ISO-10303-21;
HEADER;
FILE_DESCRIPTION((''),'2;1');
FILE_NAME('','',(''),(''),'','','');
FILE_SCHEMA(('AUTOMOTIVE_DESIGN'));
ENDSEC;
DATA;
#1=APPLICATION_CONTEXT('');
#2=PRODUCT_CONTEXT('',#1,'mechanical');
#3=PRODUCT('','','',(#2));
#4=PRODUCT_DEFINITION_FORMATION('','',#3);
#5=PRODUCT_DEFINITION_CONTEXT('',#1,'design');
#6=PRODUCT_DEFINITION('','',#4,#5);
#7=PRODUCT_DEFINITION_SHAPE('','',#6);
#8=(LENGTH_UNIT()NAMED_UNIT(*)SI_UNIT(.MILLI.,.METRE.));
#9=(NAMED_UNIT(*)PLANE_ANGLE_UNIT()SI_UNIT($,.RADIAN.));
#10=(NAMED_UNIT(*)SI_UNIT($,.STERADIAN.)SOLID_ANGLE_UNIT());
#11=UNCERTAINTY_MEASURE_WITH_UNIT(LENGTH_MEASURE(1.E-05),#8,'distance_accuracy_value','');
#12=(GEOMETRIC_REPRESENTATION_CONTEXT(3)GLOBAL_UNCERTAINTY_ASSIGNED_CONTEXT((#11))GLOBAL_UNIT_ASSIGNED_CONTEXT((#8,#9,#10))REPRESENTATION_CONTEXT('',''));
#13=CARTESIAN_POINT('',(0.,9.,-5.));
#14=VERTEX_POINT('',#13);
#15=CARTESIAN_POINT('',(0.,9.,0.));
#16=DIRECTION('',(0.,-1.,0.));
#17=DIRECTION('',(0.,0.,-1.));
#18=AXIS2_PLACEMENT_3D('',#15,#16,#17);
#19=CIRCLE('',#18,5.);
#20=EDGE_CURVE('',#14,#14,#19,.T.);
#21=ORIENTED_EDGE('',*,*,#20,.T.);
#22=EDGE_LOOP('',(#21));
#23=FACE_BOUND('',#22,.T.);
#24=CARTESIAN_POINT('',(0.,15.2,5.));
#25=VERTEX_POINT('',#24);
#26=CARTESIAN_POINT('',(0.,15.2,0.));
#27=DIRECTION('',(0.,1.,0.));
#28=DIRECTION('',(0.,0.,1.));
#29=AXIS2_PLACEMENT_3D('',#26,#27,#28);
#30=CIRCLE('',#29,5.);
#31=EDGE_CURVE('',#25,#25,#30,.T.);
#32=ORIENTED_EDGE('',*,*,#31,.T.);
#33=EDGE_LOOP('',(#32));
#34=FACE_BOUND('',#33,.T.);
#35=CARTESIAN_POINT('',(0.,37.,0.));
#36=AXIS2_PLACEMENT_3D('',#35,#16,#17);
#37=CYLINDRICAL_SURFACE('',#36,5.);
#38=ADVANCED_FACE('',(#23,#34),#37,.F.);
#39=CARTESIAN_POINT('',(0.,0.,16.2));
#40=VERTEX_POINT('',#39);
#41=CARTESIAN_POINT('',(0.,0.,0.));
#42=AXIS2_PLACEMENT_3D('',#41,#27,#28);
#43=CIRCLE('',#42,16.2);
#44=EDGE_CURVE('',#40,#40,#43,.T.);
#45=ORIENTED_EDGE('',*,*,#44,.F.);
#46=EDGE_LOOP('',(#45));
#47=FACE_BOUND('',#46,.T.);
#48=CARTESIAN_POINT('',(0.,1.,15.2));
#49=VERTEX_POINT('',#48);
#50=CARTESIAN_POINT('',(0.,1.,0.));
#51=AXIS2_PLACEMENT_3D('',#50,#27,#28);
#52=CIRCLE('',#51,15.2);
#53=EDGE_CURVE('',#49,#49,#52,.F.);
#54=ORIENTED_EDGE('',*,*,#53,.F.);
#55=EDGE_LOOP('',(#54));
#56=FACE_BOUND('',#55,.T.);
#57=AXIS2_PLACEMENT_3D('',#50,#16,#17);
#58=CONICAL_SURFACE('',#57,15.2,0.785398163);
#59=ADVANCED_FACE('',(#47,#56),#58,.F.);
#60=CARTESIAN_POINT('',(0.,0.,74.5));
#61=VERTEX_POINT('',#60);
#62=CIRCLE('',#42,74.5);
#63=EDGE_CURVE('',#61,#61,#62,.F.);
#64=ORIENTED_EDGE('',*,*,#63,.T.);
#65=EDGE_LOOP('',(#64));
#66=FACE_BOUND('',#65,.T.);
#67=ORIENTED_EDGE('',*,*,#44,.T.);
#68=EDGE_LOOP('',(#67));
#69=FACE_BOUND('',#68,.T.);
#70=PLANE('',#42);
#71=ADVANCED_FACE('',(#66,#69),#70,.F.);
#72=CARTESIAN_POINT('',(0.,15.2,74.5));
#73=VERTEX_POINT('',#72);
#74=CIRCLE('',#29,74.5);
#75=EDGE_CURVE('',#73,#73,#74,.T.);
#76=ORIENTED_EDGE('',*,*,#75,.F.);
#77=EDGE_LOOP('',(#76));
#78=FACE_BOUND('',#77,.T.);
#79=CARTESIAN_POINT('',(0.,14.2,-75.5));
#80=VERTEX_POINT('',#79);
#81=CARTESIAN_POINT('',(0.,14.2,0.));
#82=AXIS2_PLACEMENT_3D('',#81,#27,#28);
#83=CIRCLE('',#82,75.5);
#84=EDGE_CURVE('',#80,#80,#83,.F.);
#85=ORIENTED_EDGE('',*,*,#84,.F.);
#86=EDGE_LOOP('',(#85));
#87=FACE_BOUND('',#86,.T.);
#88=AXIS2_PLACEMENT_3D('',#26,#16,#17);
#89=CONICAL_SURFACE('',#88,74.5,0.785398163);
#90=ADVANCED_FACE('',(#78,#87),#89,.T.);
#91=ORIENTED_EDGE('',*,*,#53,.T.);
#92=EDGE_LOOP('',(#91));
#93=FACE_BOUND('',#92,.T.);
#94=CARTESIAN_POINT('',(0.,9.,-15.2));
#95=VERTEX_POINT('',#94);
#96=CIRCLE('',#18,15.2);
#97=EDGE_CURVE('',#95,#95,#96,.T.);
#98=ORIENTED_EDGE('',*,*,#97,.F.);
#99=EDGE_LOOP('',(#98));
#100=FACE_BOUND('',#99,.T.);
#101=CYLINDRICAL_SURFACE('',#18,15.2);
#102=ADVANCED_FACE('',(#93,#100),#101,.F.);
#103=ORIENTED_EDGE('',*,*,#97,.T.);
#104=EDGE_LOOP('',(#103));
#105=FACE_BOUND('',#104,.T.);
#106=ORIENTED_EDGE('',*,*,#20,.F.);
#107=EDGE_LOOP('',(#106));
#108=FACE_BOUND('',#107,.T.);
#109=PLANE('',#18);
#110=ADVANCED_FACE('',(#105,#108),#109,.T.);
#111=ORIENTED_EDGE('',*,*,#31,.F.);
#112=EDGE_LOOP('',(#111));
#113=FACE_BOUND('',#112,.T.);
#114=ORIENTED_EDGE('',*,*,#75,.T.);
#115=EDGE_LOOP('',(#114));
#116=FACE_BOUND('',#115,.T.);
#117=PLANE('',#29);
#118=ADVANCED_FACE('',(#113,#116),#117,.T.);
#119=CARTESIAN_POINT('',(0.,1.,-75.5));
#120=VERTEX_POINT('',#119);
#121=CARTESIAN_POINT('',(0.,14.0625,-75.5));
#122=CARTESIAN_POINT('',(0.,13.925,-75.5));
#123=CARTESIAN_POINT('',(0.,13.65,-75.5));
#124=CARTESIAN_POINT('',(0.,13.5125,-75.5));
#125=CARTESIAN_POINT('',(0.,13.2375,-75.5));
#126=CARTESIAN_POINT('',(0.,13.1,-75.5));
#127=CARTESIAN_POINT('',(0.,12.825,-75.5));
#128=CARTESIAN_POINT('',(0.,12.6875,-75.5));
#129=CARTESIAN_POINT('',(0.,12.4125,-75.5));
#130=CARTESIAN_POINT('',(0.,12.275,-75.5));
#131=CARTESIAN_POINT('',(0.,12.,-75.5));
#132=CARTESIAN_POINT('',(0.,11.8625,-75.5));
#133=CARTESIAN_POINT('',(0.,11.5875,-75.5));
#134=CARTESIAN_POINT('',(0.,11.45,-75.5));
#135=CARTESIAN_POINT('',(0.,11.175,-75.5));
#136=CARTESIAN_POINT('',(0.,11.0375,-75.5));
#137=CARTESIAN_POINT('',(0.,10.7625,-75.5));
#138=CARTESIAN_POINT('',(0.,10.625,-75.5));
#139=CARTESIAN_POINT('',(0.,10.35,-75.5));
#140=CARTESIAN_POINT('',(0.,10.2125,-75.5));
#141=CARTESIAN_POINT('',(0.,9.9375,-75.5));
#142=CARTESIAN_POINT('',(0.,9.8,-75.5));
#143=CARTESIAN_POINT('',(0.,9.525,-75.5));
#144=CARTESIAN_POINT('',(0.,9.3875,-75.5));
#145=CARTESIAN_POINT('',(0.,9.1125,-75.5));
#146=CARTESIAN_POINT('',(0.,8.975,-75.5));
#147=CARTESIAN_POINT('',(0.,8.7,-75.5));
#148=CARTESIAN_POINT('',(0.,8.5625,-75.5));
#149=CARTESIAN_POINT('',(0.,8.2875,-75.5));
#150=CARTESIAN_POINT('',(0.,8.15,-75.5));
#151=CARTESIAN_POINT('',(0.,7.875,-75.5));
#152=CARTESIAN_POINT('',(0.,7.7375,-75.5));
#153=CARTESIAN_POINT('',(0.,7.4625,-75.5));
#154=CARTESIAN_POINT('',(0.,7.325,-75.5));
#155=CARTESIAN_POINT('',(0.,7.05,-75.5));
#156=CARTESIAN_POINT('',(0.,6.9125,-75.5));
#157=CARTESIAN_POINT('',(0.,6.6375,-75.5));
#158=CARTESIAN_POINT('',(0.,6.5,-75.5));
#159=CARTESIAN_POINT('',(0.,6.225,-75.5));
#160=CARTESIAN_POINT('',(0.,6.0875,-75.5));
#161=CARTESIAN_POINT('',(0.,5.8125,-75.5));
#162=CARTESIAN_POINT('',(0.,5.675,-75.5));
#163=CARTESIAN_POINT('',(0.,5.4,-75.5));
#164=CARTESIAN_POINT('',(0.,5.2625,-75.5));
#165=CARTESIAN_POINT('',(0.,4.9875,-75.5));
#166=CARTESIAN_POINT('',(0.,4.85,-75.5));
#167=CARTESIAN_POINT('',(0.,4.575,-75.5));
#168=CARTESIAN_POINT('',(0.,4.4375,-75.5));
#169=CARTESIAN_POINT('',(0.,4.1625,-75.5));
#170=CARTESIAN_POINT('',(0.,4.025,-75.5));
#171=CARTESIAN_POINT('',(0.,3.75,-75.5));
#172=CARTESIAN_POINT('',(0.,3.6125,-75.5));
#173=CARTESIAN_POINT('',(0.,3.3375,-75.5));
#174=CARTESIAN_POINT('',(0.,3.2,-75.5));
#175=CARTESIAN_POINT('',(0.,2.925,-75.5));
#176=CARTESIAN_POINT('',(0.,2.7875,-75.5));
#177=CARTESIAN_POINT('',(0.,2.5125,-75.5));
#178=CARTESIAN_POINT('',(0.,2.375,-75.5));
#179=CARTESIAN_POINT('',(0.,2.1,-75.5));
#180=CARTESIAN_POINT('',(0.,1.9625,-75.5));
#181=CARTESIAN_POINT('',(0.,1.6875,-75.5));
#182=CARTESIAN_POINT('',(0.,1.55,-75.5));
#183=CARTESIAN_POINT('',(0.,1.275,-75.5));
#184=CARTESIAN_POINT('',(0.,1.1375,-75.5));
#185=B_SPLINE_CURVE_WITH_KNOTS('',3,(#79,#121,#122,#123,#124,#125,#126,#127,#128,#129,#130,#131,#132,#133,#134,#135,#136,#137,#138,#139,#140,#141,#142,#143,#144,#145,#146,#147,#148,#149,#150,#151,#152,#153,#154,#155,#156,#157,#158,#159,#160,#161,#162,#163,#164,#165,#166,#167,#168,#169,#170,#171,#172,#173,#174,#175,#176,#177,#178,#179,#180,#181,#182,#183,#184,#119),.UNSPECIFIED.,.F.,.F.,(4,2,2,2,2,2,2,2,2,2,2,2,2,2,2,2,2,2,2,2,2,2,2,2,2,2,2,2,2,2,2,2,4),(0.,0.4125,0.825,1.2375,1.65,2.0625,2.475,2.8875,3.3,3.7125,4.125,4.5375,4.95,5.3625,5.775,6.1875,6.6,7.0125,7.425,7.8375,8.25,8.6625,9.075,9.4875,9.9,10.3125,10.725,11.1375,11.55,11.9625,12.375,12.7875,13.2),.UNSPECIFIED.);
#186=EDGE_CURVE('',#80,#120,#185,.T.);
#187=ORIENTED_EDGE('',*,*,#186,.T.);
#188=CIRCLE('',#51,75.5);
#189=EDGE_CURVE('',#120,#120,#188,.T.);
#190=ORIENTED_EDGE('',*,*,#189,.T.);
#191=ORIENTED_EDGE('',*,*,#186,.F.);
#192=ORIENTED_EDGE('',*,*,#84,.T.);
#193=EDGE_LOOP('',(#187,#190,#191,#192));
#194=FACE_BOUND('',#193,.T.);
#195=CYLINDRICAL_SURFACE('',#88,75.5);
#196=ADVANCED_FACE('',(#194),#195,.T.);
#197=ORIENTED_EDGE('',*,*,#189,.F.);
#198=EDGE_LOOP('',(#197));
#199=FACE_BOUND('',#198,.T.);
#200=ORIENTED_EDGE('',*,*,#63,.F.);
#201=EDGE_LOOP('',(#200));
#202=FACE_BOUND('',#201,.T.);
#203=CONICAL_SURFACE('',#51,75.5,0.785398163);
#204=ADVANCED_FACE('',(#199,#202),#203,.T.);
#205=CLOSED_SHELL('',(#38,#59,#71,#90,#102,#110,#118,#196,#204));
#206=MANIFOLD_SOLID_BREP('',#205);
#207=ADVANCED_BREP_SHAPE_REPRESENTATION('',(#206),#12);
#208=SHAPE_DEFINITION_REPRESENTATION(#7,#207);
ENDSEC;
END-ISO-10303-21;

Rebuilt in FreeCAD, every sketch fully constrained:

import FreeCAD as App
import Part
import Sketcher

V = App.Vector


def edges_at(feature, points):
    """Names of the edges that pass closest to the given points."""
    edges = feature.Shape.Edges
    near = lambda p: min(range(len(edges)), key=lambda i: edges[i].distToShape(Part.Vertex(*p))[0])
    return sorted({f"Edge{near(p) + 1}" for p in points})

doc = App.newDocument("Part")
body = doc.addObject("PartDesign::Body", "Body")

# Sketch on XZ plane
sketch1 = doc.addObject("Sketcher::SketchObject", "Sketch")
body.addObject(sketch1)
sketch1.AttachmentSupport = (doc.XZ_Plane, [""])
sketch1.MapMode = "FlatFace"
sketch1.addGeometry(Part.Circle(V(0, 0, 0), V(0, 0, 1), 76), False)
sketch1.addConstraint(Sketcher.Constraint("Coincident", 0, 3, -1, 1))
sketch1.addConstraint(Sketcher.Constraint("Diameter", 0, 151.0))
pad1 = doc.addObject("PartDesign::Pad", "Pad")
body.addObject(pad1)
pad1.Profile = sketch1
pad1.Length = 15.2
pad1.Reversed = True

# Sketch on XZ plane
sketch2 = doc.addObject("Sketcher::SketchObject", "Sketch001")
body.addObject(sketch2)
sketch2.AttachmentSupport = (doc.XZ_Plane, [""])
sketch2.MapMode = "FlatFace"
sketch2.addGeometry(Part.Circle(V(0, 0, 0), V(0, 0, 1), 15), False)
sketch2.addConstraint(Sketcher.Constraint("Coincident", 0, 3, -1, 1))
sketch2.addConstraint(Sketcher.Constraint("Diameter", 0, 30.4))
pocket1 = doc.addObject("PartDesign::Pocket", "Pocket")
body.addObject(pocket1)
pocket1.Profile = sketch2
pocket1.Length = 9
doc.recompute()

chamfer = doc.addObject("PartDesign::Chamfer", "Chamfer")
body.addObject(chamfer)
chamfer.Base = (pocket1, edges_at(pocket1, [(0, 0, 15.2)]))
chamfer.Size = 1

# Sketch on XZ plane
sketch3 = doc.addObject("Sketcher::SketchObject", "Sketch002")
body.addObject(sketch3)
sketch3.AttachmentSupport = (doc.XZ_Plane, [""])
sketch3.MapMode = "FlatFace"
sketch3.AttachmentOffset = App.Placement(V(0, 0, -9), App.Rotation())
sketch3.addGeometry(Part.Circle(V(0, 0, 0), V(0, 0, 1), 5), False)
sketch3.addConstraint(Sketcher.Constraint("Coincident", 0, 3, -1, 1))
sketch3.addConstraint(Sketcher.Constraint("Diameter", 0, 10.0))
pocket2 = doc.addObject("PartDesign::Pocket", "Pocket001")
body.addObject(pocket2)
pocket2.Profile = sketch3
pocket2.Length = 28
doc.recompute()

chamfer2 = doc.addObject("PartDesign::Chamfer", "Chamfer001")
body.addObject(chamfer2)
chamfer2.Base = (pocket2, edges_at(pocket2, [(0, 0, 75.5), (0, 15.2, 75.5)]))
chamfer2.Size = 1

doc.recompute()
